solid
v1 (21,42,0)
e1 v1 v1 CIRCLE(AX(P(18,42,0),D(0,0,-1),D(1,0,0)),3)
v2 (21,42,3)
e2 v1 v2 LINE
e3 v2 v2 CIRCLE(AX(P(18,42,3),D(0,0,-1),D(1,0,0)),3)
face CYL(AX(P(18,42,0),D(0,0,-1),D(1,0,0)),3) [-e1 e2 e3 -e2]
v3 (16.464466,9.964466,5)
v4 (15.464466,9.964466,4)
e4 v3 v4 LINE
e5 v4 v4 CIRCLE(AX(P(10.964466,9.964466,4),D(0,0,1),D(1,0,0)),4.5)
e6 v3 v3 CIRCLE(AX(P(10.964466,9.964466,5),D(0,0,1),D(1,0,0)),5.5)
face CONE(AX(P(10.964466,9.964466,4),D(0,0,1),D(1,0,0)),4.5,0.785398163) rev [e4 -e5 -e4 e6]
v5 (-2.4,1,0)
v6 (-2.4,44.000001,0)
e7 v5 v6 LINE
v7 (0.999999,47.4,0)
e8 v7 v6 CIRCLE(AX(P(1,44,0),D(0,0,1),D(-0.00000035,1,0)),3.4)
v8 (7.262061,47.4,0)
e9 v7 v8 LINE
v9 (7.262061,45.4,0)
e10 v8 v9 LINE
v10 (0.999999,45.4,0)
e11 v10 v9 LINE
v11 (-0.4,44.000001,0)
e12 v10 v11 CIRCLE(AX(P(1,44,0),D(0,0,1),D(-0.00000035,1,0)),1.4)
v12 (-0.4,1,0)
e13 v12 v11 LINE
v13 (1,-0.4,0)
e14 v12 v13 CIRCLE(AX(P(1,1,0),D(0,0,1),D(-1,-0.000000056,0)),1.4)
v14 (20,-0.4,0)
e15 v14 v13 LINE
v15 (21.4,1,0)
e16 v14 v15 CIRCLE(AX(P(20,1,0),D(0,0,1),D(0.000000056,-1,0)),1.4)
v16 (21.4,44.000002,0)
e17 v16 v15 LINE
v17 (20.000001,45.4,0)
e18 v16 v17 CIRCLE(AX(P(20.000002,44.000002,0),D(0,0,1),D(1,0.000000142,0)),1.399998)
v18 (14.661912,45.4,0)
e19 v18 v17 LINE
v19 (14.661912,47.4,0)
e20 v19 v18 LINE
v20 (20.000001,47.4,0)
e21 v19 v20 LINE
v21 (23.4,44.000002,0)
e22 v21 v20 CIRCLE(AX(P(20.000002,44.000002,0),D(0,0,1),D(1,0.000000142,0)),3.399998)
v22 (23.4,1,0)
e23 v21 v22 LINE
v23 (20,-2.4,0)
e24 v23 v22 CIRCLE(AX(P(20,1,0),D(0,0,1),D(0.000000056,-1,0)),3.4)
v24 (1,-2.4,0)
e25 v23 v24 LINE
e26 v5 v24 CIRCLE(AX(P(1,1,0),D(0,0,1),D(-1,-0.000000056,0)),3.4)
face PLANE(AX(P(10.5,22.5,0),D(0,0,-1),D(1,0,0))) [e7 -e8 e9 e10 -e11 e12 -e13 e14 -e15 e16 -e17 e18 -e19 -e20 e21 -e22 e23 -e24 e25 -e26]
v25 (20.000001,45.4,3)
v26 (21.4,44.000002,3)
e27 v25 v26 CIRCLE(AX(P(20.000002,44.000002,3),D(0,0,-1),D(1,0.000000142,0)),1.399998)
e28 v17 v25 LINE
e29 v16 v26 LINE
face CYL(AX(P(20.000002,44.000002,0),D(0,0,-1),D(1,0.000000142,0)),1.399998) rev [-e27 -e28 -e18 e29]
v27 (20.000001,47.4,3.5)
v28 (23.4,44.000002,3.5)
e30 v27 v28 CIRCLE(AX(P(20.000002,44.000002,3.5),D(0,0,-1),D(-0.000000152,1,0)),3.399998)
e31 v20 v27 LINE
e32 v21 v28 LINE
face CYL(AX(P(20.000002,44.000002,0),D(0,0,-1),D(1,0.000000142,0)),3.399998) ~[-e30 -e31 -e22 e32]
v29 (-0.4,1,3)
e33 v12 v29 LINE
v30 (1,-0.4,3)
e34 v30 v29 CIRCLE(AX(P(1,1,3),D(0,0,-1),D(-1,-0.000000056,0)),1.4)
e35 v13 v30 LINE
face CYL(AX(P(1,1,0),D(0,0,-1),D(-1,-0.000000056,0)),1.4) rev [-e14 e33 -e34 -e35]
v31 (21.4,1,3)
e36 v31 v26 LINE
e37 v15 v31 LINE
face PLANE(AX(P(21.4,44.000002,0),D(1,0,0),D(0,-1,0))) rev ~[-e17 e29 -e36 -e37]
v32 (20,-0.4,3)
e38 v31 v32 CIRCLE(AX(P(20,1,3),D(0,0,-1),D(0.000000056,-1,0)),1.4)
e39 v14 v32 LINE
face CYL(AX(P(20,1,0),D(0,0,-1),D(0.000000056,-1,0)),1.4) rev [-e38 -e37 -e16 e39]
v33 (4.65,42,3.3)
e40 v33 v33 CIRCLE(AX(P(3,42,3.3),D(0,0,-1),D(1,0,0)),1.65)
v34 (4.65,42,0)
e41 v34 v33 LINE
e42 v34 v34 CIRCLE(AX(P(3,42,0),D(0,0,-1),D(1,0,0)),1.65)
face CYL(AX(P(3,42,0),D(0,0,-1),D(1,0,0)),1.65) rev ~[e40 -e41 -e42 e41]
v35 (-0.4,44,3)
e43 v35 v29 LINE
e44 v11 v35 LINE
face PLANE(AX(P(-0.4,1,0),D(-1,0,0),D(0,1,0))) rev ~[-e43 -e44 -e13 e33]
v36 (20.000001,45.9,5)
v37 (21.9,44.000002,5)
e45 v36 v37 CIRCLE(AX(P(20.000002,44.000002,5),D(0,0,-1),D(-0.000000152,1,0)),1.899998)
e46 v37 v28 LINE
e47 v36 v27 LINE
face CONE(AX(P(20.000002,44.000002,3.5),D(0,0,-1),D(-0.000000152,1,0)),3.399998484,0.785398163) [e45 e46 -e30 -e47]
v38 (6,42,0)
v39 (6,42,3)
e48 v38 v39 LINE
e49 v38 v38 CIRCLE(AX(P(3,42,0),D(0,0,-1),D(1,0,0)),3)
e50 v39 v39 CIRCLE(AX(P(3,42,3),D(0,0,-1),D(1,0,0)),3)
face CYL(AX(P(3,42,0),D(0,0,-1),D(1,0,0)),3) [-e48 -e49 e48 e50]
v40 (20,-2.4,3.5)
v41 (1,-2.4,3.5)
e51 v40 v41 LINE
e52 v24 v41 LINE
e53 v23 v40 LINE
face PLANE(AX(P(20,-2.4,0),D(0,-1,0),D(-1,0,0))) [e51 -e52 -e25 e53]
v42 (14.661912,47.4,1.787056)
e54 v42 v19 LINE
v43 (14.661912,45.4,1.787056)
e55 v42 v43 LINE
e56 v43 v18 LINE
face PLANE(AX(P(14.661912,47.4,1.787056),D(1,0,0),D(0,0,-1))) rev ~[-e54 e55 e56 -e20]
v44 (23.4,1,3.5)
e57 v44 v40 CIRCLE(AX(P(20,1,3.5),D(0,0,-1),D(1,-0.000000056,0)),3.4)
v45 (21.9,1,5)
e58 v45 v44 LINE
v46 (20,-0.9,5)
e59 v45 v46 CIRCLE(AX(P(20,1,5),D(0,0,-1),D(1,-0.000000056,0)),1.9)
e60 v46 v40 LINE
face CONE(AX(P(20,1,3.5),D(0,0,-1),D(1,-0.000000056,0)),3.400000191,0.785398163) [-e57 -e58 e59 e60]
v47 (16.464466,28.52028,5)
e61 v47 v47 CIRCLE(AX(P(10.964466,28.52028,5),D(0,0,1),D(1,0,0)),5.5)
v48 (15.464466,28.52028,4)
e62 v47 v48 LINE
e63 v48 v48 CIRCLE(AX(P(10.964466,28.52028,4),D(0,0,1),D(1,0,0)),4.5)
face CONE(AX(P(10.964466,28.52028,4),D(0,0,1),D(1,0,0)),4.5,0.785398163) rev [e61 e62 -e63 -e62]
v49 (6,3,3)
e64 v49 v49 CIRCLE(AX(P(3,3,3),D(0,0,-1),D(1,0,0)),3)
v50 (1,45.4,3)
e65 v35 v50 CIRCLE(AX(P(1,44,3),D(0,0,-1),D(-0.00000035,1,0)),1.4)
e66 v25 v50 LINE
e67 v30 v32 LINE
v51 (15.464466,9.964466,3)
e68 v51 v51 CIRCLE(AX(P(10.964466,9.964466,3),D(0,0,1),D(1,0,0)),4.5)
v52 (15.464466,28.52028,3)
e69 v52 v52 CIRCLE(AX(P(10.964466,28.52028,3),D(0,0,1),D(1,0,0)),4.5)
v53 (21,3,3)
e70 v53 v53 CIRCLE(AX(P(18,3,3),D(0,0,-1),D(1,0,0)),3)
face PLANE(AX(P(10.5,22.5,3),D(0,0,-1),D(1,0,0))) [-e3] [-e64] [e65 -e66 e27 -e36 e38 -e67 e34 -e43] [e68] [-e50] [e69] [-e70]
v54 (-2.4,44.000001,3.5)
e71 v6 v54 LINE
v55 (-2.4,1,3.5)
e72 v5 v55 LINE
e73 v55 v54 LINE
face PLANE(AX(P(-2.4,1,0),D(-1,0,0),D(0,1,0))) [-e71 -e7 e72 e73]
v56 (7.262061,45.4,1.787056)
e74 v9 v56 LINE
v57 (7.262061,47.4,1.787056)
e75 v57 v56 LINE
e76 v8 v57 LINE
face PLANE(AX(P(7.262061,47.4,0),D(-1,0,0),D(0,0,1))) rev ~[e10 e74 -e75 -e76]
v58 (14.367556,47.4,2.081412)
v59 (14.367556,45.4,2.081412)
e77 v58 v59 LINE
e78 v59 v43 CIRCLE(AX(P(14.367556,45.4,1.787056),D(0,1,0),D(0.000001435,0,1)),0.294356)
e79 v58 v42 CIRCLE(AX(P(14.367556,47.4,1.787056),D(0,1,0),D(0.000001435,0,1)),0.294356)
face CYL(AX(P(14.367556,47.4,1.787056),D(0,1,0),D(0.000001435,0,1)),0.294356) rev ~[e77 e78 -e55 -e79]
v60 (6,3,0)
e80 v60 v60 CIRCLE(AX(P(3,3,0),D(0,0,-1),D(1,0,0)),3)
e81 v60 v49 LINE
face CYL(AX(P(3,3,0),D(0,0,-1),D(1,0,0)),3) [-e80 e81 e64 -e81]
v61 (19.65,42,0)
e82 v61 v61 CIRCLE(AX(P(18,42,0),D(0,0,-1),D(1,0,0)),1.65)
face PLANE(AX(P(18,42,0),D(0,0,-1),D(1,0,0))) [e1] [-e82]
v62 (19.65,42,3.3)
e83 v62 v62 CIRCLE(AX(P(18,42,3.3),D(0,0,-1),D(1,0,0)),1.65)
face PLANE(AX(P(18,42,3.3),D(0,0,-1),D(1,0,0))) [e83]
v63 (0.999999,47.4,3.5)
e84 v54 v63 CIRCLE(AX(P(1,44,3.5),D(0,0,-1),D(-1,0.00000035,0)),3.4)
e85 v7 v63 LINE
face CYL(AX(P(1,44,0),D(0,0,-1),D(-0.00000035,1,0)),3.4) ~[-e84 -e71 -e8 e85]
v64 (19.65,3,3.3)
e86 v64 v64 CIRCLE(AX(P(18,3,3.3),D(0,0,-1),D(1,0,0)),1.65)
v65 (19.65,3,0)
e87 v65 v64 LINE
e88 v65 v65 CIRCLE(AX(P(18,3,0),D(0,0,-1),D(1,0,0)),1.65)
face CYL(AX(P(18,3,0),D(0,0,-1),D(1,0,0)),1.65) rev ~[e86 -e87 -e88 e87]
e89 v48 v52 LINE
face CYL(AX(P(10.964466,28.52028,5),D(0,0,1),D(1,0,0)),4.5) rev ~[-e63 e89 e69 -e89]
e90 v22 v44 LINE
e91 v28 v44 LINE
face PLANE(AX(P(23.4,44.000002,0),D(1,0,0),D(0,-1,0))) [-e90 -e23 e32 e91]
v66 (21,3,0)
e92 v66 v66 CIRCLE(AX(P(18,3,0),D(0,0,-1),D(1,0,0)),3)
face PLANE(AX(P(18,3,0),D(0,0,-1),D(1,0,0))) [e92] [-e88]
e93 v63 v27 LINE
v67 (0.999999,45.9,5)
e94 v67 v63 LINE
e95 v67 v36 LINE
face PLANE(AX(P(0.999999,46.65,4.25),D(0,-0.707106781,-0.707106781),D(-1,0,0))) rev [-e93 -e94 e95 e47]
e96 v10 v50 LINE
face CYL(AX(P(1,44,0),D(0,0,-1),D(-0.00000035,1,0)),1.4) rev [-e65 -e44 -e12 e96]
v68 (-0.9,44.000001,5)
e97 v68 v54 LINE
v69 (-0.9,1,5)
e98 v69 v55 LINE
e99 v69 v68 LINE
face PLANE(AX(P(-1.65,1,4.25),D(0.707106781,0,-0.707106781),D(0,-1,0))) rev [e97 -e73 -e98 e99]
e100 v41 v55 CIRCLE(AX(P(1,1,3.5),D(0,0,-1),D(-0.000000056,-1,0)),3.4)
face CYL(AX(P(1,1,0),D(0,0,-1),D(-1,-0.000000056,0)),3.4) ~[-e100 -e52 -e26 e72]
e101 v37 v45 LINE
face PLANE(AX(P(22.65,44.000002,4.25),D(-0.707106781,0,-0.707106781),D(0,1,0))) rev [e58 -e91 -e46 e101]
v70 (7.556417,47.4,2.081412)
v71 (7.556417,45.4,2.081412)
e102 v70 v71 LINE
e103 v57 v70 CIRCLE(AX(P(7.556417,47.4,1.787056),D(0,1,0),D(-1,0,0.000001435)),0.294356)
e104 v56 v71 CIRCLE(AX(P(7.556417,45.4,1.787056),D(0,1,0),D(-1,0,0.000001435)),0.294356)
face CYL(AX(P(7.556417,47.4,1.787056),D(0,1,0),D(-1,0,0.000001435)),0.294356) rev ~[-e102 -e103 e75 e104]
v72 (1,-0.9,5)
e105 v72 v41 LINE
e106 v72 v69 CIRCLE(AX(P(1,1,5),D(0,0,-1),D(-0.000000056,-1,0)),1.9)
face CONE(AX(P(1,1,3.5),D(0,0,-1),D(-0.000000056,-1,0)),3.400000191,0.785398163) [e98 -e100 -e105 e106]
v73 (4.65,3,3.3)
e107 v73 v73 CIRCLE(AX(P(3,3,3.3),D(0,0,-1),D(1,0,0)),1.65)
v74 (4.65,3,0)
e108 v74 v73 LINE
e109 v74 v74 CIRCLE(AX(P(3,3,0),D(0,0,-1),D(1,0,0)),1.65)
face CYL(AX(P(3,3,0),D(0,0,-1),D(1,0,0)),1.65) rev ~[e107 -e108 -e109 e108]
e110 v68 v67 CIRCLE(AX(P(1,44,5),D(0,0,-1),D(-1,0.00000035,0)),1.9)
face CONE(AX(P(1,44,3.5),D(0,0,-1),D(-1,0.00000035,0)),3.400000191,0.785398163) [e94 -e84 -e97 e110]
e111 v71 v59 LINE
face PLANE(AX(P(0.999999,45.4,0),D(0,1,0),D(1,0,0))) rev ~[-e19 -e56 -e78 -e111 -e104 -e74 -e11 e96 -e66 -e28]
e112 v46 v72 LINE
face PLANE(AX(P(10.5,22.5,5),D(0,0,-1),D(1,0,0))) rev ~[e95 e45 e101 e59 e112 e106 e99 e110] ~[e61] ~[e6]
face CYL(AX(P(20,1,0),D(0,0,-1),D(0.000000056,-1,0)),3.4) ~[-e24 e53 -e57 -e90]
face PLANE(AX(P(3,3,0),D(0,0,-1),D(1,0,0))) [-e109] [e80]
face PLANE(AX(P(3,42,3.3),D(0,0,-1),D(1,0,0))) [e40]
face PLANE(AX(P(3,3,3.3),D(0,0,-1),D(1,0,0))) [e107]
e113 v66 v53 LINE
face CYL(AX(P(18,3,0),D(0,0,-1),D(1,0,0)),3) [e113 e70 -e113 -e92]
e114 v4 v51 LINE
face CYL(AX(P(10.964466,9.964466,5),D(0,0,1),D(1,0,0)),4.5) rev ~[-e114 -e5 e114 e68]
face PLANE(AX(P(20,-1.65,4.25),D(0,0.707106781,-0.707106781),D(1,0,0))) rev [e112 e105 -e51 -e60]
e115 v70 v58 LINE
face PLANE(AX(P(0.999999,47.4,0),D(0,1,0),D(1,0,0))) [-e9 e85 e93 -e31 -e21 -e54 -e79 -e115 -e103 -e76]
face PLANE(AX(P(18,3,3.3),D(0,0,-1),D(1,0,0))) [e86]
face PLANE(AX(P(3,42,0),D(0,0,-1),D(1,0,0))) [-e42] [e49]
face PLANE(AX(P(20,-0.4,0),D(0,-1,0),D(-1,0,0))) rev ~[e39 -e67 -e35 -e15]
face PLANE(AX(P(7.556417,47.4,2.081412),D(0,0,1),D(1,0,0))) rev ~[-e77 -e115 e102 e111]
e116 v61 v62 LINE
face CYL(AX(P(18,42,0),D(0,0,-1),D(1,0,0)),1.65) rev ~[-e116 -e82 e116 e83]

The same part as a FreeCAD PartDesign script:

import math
import FreeCAD as App
import Part
import Sketcher
Q = App.Units.Quantity


def edges_at(feature, points):
    """Names of the edges that pass closest to the given points."""
    edges = feature.Shape.Edges
    near = lambda p: min(range(len(edges)), key=lambda i: edges[i].distToShape(Part.Vertex(*p))[0])
    return sorted({f"Edge{near(p) + 1}" for p in points})


def faces_at(feature, points):
    """Names of the faces that lie closest to the given points."""
    faces = feature.Shape.Faces
    near = lambda p: min(range(len(faces)), key=lambda i: faces[i].distToShape(Part.Vertex(*p))[0])
    return sorted({f"Face{near(p) + 1}" for p in points})

doc = App.newDocument("Part")
body = doc.addObject("PartDesign::Body", "Body")

sketch1 = doc.addObject("Sketcher::SketchObject", "Sketch")
body.addObject(sketch1)
sketch1.AttachmentSupport = (doc.XY_Plane, [""])
sketch1.MapMode = "FlatFace"
sketch1.addGeometry(Part.LineSegment(App.Vector(23.4, 1, 0), App.Vector(23.4, 44, 0)), False)
sketch1.addGeometry(Part.ArcOfCircle(Part.Circle(App.Vector(20, 44, 0), App.Vector(0, 0, 1), 3.4), math.radians(0), math.radians(90)), False)
sketch1.addGeometry(Part.LineSegment(App.Vector(20, 47.4, 0), App.Vector(1, 47.4, 0)), False)
sketch1.addGeometry(Part.ArcOfCircle(Part.Circle(App.Vector(1, 44, 0), App.Vector(0, 0, 1), 3.4), math.radians(90), math.radians(180)), False)
sketch1.addGeometry(Part.LineSegment(App.Vector(-2.4, 44, 0), App.Vector(-2.4, 1, 0)), False)
sketch1.addGeometry(Part.ArcOfCircle(Part.Circle(App.Vector(1, 1, 0), App.Vector(0, 0, 1), 3.4), math.radians(-180), math.radians(-90)), False)
sketch1.addGeometry(Part.LineSegment(App.Vector(1, -2.4, 0), App.Vector(20, -2.4, 0)), False)
sketch1.addGeometry(Part.ArcOfCircle(Part.Circle(App.Vector(20, 1, 0), App.Vector(0, 0, 1), 3.4), math.radians(-90), math.radians(0)), False)
sketch1.addConstraint(Sketcher.Constraint("Tangent", 0, 2, 1, 1))
sketch1.addConstraint(Sketcher.Constraint("Tangent", 1, 2, 2, 1))
sketch1.addConstraint(Sketcher.Constraint("Tangent", 2, 2, 3, 1))
sketch1.addConstraint(Sketcher.Constraint("Tangent", 3, 2, 4, 1))
sketch1.addConstraint(Sketcher.Constraint("Tangent", 4, 2, 5, 1))
sketch1.addConstraint(Sketcher.Constraint("Tangent", 5, 2, 6, 1))
sketch1.addConstraint(Sketcher.Constraint("Tangent", 6, 2, 7, 1))
sketch1.addConstraint(Sketcher.Constraint("Tangent", 7, 2, 0, 1))
sketch1.addConstraint(Sketcher.Constraint("Vertical", 0))
sketch1.addConstraint(Sketcher.Constraint("Horizontal", 2))
sketch1.addConstraint(Sketcher.Constraint("Vertical", 4))
sketch1.addConstraint(Sketcher.Constraint("Horizontal", 6))
sketch1.addConstraint(Sketcher.Constraint("Equal", 1, 3))
sketch1.addConstraint(Sketcher.Constraint("Equal", 3, 5))
sketch1.addConstraint(Sketcher.Constraint("Equal", 5, 7))
sketch1.addConstraint(Sketcher.Constraint("Radius", 1, Q("3.399998 mm")))
sketch1.addConstraint(Sketcher.Constraint("DistanceX", 6, 1, 6, 2, Q("19 mm")))
sketch1.addConstraint(Sketcher.Constraint("DistanceY", 4, 2, 4, 1, Q("43.000001 mm")))
sketch1.addConstraint(Sketcher.Constraint("DistanceX", -1, 1, 1, 3, Q("20.000002 mm")))
sketch1.addConstraint(Sketcher.Constraint("DistanceY", -1, 1, 1, 3, Q("44.000002 mm")))
pad1 = doc.addObject("PartDesign::Pad", "Pad")
body.addObject(pad1)
pad1.Profile = sketch1
pad1.Length = 5
doc.recompute()

thickness = doc.addObject("PartDesign::Thickness", "Thickness")
body.addObject(thickness)
thickness.Base = (pad1, faces_at(pad1, [(10.5, 22.5, 0)]))
thickness.Value = 2
thickness.Reversed = True
thickness.Join = "Arc"

sketch2 = doc.addObject("Sketcher::SketchObject", "Sketch001")
body.addObject(sketch2)
sketch2.AttachmentSupport = (doc.XY_Plane, [""])
sketch2.MapMode = "FlatFace"
sketch2.AttachmentOffset = App.Placement(App.Vector(0, 0, 5), App.Rotation())
sketch2.addGeometry(Part.Circle(App.Vector(11, 10, 0), App.Vector(0, 0, 1), 4.5), False)
sketch2.addGeometry(Part.Circle(App.Vector(11, 28.5, 0), App.Vector(0, 0, 1), 4.5), False)
sketch2.addConstraint(Sketcher.Constraint("Equal", 0, 1))
sketch2.addConstraint(Sketcher.Constraint("Vertical", 0, 3, 1, 3))
sketch2.addConstraint(Sketcher.Constraint("Diameter", 0, Q("9 mm")))
sketch2.addConstraint(Sketcher.Constraint("DistanceY", -1, 1, 1, 3, Q("28.52028 mm")))
sketch2.addConstraint(Sketcher.Constraint("DistanceX", -1, 1, 0, 3, Q("10.964466 mm")))
sketch2.addConstraint(Sketcher.Constraint("DistanceY", -1, 1, 0, 3, Q("9.964466 mm")))
pocket1 = doc.addObject("PartDesign::Pocket", "Pocket")
body.addObject(pocket1)
pocket1.Profile = sketch2
pocket1.Type = "ThroughAll"

sketch3 = doc.addObject("Sketcher::SketchObject", "Sketch002")
body.addObject(sketch3)
sketch3.AttachmentSupport = (doc.XY_Plane, [""])
sketch3.MapMode = "FlatFace"
sketch3.addGeometry(Part.Circle(App.Vector(3, 3, 0), App.Vector(0, 0, 1), 3), False)
sketch3.addGeometry(Part.Circle(App.Vector(18, 3, 0), App.Vector(0, 0, 1), 3), False)
sketch3.addGeometry(Part.Circle(App.Vector(18, 42, 0), App.Vector(0, 0, 1), 3), False)
sketch3.addGeometry(Part.Circle(App.Vector(3, 42, 0), App.Vector(0, 0, 1), 3), False)
sketch3.addConstraint(Sketcher.Constraint("Equal", 0, 1))
sketch3.addConstraint(Sketcher.Constraint("Equal", 1, 2))
sketch3.addConstraint(Sketcher.Constraint("Equal", 2, 3))
sketch3.addConstraint(Sketcher.Constraint("Horizontal", 0, 3, 1, 3))
sketch3.addConstraint(Sketcher.Constraint("Horizontal", 2, 3, 3, 3))
sketch3.addConstraint(Sketcher.Constraint("Vertical", 1, 3, 2, 3))
sketch3.addConstraint(Sketcher.Constraint("Vertical", 0, 3, 3, 3))
sketch3.addConstraint(Sketcher.Constraint("Diameter", 0, Q("6 mm")))
sketch3.addConstraint(Sketcher.Constraint("DistanceX", -1, 1, 0, 3, Q("3 mm")))
sketch3.addConstraint(Sketcher.Constraint("DistanceY", -1, 1, 0, 3, Q("3 mm")))
sketch3.addConstraint(Sketcher.Constraint("DistanceX", -1, 1, 1, 3, Q("18 mm")))
sketch3.addConstraint(Sketcher.Constraint("DistanceY", -1, 1, 2, 3, Q("42 mm")))
pad2 = doc.addObject("PartDesign::Pad", "Pad001")
body.addObject(pad2)
pad2.Profile = sketch3
pad2.Length = 3

sketch4 = doc.addObject("Sketcher::SketchObject", "Sketch003")
body.addObject(sketch4)
sketch4.AttachmentSupport = (doc.XY_Plane, [""])
sketch4.MapMode = "FlatFace"
sketch4.addGeometry(Part.Circle(App.Vector(3, 3, 0), App.Vector(0, 0, 1), 1.6), False)
sketch4.addGeometry(Part.Circle(App.Vector(18, 3, 0), App.Vector(0, 0, 1), 1.6), False)
sketch4.addGeometry(Part.Circle(App.Vector(18, 42, 0), App.Vector(0, 0, 1), 1.6), False)
sketch4.addGeometry(Part.Circle(App.Vector(3, 42, 0), App.Vector(0, 0, 1), 1.6), False)
sketch4.addConstraint(Sketcher.Constraint("Equal", 0, 1))
sketch4.addConstraint(Sketcher.Constraint("Equal", 1, 2))
sketch4.addConstraint(Sketcher.Constraint("Equal", 2, 3))
sketch4.addConstraint(Sketcher.Constraint("Horizontal", 0, 3, 1, 3))
sketch4.addConstraint(Sketcher.Constraint("Horizontal", 2, 3, 3, 3))
sketch4.addConstraint(Sketcher.Constraint("Vertical", 1, 3, 2, 3))
sketch4.addConstraint(Sketcher.Constraint("Vertical", 0, 3, 3, 3))
sketch4.addConstraint(Sketcher.Constraint("Diameter", 0, Q("3.3 mm")))
sketch4.addConstraint(Sketcher.Constraint("DistanceX", -1, 1, 0, 3, Q("3 mm")))
sketch4.addConstraint(Sketcher.Constraint("DistanceY", -1, 1, 0, 3, Q("3 mm")))
sketch4.addConstraint(Sketcher.Constraint("DistanceX", -1, 1, 1, 3, Q("18 mm")))
sketch4.addConstraint(Sketcher.Constraint("DistanceY", -1, 1, 2, 3, Q("42 mm")))
pocket2 = doc.addObject("PartDesign::Pocket", "Pocket001")
body.addObject(pocket2)
pocket2.Profile = sketch4
pocket2.Length = 3.3
pocket2.Reversed = True

sketch5 = doc.addObject("Sketcher::SketchObject", "Sketch004")
body.addObject(sketch5)
sketch5.AttachmentSupport = (doc.XZ_Plane, [""])
sketch5.MapMode = "FlatFace"
sketch5.AttachmentOffset = App.Placement(App.Vector(0, 0, -47.4), App.Rotation())
sketch5.addGeometry(Part.LineSegment(App.Vector(14.66, 0, 0), App.Vector(7.26, 0, 0)), False)
sketch5.addGeometry(Part.LineSegment(App.Vector(7.26, 0, 0), App.Vector(7.26, 1.79, 0)), False)
sketch5.addGeometry(Part.ArcOfCircle(Part.Circle(App.Vector(7.56, 1.79, 0), App.Vector(0, 0, 1), 0.29), math.radians(90), math.radians(180)), False)
sketch5.addGeometry(Part.LineSegment(App.Vector(7.56, 2.08, 0), App.Vector(14.37, 2.08, 0)), False)
sketch5.addGeometry(Part.ArcOfCircle(Part.Circle(App.Vector(14.37, 1.79, 0), App.Vector(0, 0, 1), 0.29), math.radians(0), math.radians(90)), False)
sketch5.addGeometry(Part.LineSegment(App.Vector(14.66, 1.79, 0), App.Vector(14.66, 0, 0)), False)
sketch5.addConstraint(Sketcher.Constraint("Coincident", 0, 2, 1, 1))
sketch5.addConstraint(Sketcher.Constraint("Tangent", 1, 2, 2, 2))
sketch5.addConstraint(Sketcher.Constraint("Tangent", 2, 1, 3, 1))
sketch5.addConstraint(Sketcher.Constraint("Tangent", 3, 2, 4, 2))
sketch5.addConstraint(Sketcher.Constraint("Tangent", 4, 1, 5, 1))
sketch5.addConstraint(Sketcher.Constraint("Coincident", 5, 2, 0, 1))
sketch5.addConstraint(Sketcher.Constraint("Horizontal", 0))
sketch5.addConstraint(Sketcher.Constraint("Vertical", 1))
sketch5.addConstraint(Sketcher.Constraint("Horizontal", 3))
sketch5.addConstraint(Sketcher.Constraint("Vertical", 5))
sketch5.addConstraint(Sketcher.Constraint("Equal", 2, 4))
sketch5.addConstraint(Sketcher.Constraint("PointOnObject", 0, 2, -1))
sketch5.addConstraint(Sketcher.Constraint("Radius", 2, Q("0.294356 mm")))
sketch5.addConstraint(Sketcher.Constraint("DistanceX", 0, 2, 0, 1, Q("7.399851 mm")))
sketch5.addConstraint(Sketcher.Constraint("DistanceY", 1, 1, 1, 2, Q("1.787056 mm")))
sketch5.addConstraint(Sketcher.Constraint("DistanceX", -1, 1, 0, 2, Q("7.262061 mm")))
pocket3 = doc.addObject("PartDesign::Pocket", "Pocket002")
body.addObject(pocket3)
pocket3.Profile = sketch5
pocket3.Length = 2
pocket3.Reversed = True
doc.recompute()

chamfer = doc.addObject("PartDesign::Chamfer", "Chamfer")
body.addObject(chamfer)
chamfer.Base = (pocket3, edges_at(pocket3, [(6.464, 28.52, 5), (6.464, 9.964, 5)]))
chamfer.Size = 1
doc.recompute()

chamfer2 = doc.addObject("PartDesign::Chamfer", "Chamfer001")
body.addObject(chamfer2)
chamfer2.Base = (chamfer, edges_at(chamfer, [(10.5, 47.4, 5)]))
chamfer2.Size = 1.5

doc.recompute()
